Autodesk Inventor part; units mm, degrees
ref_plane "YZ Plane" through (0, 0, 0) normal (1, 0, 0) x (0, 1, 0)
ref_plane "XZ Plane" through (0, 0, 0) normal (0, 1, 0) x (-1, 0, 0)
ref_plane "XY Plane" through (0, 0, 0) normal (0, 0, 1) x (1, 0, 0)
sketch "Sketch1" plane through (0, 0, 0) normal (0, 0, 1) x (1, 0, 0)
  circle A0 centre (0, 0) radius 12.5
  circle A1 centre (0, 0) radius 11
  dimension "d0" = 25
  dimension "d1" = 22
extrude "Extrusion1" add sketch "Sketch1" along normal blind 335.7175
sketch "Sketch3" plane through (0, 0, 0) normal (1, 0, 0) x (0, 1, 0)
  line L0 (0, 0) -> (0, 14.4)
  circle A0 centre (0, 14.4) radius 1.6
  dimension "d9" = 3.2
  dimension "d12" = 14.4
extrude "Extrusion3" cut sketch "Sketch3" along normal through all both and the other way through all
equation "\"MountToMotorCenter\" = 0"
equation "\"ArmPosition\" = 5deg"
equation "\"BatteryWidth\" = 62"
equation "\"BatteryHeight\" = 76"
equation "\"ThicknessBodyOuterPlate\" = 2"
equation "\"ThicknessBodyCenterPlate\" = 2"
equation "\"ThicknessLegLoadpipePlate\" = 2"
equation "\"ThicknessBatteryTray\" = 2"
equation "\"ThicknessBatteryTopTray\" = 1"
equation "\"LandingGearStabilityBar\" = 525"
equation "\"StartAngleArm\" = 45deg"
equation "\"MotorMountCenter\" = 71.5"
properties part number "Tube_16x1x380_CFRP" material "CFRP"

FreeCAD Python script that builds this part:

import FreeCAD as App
import Part
import Sketcher

doc = App.newDocument("Part")
body = doc.addObject("PartDesign::Body", "Body")

sketch1 = body.newObject("Sketcher::SketchObject", "Sketch")
sketch1.AttachmentSupport = (doc.getObject("XY_Plane"), [""])
sketch1.MapMode = "FlatFace"
sketch1.addGeometry(Part.Circle(App.Vector(0, 0, 0), App.Vector(0, 0, 1), 12), False)
sketch1.addGeometry(Part.Circle(App.Vector(0, 0, 0), App.Vector(0, 0, 1), 11), False)
sketch1.addConstraint(Sketcher.Constraint("Coincident", 0, 3, -1, 1))
sketch1.addConstraint(Sketcher.Constraint("Coincident", 1, 3, -1, 1))
sketch1.addConstraint(Sketcher.Constraint("Diameter", 0, 25.0))
sketch1.addConstraint(Sketcher.Constraint("Diameter", 1, 22.0))
pad1 = body.newObject("PartDesign::Pad", "Pad")
pad1.Profile = sketch1
pad1.Length = 335.7175

sketch2 = body.newObject("Sketcher::SketchObject", "Sketch001")
sketch2.AttachmentSupport = (doc.getObject("YZ_Plane"), [""])
sketch2.MapMode = "FlatFace"
sketch2.addGeometry(Part.Circle(App.Vector(0, 14.4, 0), App.Vector(0, 0, 1), 1.6), False)
sketch2.addConstraint(Sketcher.Constraint("PointOnObject", 0, 3, -2))
sketch2.addConstraint(Sketcher.Constraint("Diameter", 0, 3.2))
sketch2.addConstraint(Sketcher.Constraint("DistanceY", -1, 1, 0, 3, 14.4))
pocket1 = body.newObject("PartDesign::Pocket", "Pocket")
pocket1.Profile = sketch2
pocket1.Type = "ThroughAll"
pocket1.Midplane = True

doc.recompute()
